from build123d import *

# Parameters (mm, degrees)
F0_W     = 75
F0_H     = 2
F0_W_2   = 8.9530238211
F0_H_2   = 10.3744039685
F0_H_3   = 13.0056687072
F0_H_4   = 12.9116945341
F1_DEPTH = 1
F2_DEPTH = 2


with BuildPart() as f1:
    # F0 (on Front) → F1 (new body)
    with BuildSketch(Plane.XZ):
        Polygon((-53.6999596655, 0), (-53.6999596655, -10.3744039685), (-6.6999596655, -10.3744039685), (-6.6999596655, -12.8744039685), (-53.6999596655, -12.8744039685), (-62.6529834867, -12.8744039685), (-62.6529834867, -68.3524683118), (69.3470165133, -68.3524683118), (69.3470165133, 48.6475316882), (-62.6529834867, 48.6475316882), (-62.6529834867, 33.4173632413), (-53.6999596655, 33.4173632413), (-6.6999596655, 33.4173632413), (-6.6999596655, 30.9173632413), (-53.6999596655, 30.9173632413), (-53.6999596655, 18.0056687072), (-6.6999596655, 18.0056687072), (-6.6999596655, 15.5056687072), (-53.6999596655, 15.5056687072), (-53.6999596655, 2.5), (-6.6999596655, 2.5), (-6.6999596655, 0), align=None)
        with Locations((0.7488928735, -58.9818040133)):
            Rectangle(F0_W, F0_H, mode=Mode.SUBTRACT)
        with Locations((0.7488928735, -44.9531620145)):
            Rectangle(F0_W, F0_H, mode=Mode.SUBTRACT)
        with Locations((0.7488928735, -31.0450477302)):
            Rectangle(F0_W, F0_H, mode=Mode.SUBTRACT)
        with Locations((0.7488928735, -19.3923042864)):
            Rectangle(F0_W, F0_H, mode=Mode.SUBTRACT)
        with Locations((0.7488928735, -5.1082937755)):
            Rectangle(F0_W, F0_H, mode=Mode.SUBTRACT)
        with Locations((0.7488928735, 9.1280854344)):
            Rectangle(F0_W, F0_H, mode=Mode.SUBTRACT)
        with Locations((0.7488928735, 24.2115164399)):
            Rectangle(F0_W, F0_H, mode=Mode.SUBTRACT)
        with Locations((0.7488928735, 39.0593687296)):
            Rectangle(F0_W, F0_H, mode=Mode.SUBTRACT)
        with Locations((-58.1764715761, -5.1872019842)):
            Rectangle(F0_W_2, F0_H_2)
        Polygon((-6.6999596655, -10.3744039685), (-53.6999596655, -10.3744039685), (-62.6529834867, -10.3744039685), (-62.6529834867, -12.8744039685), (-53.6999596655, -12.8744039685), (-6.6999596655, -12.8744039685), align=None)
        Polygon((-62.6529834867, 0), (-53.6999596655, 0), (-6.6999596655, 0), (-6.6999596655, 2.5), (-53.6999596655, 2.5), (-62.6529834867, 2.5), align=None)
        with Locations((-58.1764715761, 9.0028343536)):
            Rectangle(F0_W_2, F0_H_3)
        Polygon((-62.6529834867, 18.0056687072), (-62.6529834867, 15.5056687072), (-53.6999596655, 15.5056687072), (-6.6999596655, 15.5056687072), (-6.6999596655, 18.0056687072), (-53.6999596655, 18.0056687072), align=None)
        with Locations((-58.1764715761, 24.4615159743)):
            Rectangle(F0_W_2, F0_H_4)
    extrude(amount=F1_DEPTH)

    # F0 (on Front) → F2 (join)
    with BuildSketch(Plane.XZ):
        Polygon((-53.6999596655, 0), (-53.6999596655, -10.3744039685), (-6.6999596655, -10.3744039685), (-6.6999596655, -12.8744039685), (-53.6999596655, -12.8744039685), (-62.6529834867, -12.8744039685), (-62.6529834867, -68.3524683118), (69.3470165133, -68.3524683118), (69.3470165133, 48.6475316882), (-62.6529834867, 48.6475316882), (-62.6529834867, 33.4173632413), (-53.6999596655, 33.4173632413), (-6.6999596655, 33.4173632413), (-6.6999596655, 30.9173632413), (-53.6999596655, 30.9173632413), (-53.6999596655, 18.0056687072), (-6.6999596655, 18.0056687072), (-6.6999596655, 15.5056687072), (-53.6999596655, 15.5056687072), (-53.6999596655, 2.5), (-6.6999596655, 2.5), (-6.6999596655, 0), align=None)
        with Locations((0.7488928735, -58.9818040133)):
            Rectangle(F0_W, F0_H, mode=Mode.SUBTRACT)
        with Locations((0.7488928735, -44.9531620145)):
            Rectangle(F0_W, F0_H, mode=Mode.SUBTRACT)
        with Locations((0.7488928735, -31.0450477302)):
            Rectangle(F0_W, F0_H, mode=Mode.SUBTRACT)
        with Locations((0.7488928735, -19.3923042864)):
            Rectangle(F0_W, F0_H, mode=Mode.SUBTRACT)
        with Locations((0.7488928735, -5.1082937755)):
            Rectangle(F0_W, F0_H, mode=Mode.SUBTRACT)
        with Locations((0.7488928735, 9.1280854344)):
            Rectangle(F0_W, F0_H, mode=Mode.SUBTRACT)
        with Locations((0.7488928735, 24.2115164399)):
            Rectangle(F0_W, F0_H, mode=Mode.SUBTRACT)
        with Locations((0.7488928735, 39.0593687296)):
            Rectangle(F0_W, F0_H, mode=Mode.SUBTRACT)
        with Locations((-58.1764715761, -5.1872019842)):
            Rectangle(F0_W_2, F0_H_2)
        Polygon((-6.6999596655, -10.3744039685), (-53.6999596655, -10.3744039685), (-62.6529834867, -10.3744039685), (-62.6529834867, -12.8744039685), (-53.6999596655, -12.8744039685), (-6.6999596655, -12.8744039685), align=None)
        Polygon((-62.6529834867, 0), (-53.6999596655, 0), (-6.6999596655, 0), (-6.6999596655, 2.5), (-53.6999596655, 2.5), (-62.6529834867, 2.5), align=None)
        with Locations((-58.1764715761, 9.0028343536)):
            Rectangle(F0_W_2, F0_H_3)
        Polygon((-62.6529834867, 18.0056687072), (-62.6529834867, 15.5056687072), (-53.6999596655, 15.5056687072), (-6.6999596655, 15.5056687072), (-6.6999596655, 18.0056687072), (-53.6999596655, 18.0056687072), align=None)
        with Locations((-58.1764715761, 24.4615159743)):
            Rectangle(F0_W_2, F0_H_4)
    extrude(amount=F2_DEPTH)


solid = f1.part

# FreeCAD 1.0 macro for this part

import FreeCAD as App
import Part
import Sketcher
Q = App.Units.Quantity

doc = App.newDocument("Part")
params = doc.addObject("Spreadsheet::Sheet", "Params")
for row, (alias, value) in enumerate([
    ("sketch1_width", "132 mm"),
    ("sketch1_width2", "75 mm"),
    ("sketch1_height", "117 mm"),
    ("sketch1_height2", "2 mm"),
    ("sketch1_height3", "2.5 mm"),
    ("pad1_length", "1 mm"),
    ("sketch2_width", "132 mm"),
    ("sketch2_width2", "75 mm"),
    ("sketch2_height", "117 mm"),
    ("sketch2_height2", "2 mm"),
    ("sketch2_height3", "2.5 mm"),
    ("pad2_length", "2 mm"),
], start=1):
    params.set(f"A{row}", alias)
    params.set(f"B{row}", "=" + value)
    params.setAlias(f"B{row}", alias)

body = doc.addObject("PartDesign::Body", "Body")

sketch1 = body.newObject("Sketcher::SketchObject", "Sketch")
sketch1.AttachmentSupport = (doc.getObject("XZ_Plane"), [""])
sketch1.MapMode = "FlatFace"
sketch1.addGeometry(Part.LineSegment(App.Vector(-62.7, -68.4, 0), App.Vector(69.3, -68.4, 0)), False)
sketch1.addGeometry(Part.LineSegment(App.Vector(69.3, -68.4, 0), App.Vector(69.3, 48.6, 0)), False)
sketch1.addGeometry(Part.LineSegment(App.Vector(69.3, 48.6, 0), App.Vector(-62.7, 48.6, 0)), False)
sketch1.addGeometry(Part.LineSegment(App.Vector(-62.7, 48.6, 0), App.Vector(-62.7, 33.4, 0)), False)
sketch1.addGeometry(Part.LineSegment(App.Vector(-62.7, 33.4, 0), App.Vector(-6.7, 33.4, 0)), False)
sketch1.addGeometry(Part.LineSegment(App.Vector(-6.7, 33.4, 0), App.Vector(-6.7, 30.9, 0)), False)
sketch1.addGeometry(Part.LineSegment(App.Vector(-6.7, 30.9, 0), App.Vector(-62.7, 30.9, 0)), False)
sketch1.addGeometry(Part.LineSegment(App.Vector(-62.7, 30.9, 0), App.Vector(-62.7, 18, 0)), False)
sketch1.addGeometry(Part.LineSegment(App.Vector(-62.7, 18, 0), App.Vector(-62.7, -68.4, 0)), False)
sketch1.addGeometry(Part.LineSegment(App.Vector(38.2, -60, 0), App.Vector(-36.8, -60, 0)), False)
sketch1.addGeometry(Part.LineSegment(App.Vector(-36.8, -60, 0), App.Vector(-36.8, -58, 0)), False)
sketch1.addGeometry(Part.LineSegment(App.Vector(-36.8, -58, 0), App.Vector(38.2, -58, 0)), False)
sketch1.addGeometry(Part.LineSegment(App.Vector(38.2, -58, 0), App.Vector(38.2, -60, 0)), False)
sketch1.addGeometry(Part.LineSegment(App.Vector(38.2, -46, 0), App.Vector(-36.8, -46, 0)), False)
sketch1.addGeometry(Part.LineSegment(App.Vector(-36.8, -46, 0), App.Vector(-36.8, -44, 0)), False)
sketch1.addGeometry(Part.LineSegment(App.Vector(-36.8, -44, 0), App.Vector(38.2, -44, 0)), False)
sketch1.addGeometry(Part.LineSegment(App.Vector(38.2, -44, 0), App.Vector(38.2, -46, 0)), False)
sketch1.addGeometry(Part.LineSegment(App.Vector(38.2, -32, 0), App.Vector(-36.8, -32, 0)), False)
sketch1.addGeometry(Part.LineSegment(App.Vector(-36.8, -32, 0), App.Vector(-36.8, -30, 0)), False)
sketch1.addGeometry(Part.LineSegment(App.Vector(-36.8, -30, 0), App.Vector(38.2, -30, 0)), False)
sketch1.addGeometry(Part.LineSegment(App.Vector(38.2, -30, 0), App.Vector(38.2, -32, 0)), False)
sketch1.addGeometry(Part.LineSegment(App.Vector(38.2, -20.4, 0), App.Vector(-36.8, -20.4, 0)), False)
sketch1.addGeometry(Part.LineSegment(App.Vector(-36.8, -20.4, 0), App.Vector(-36.8, -18.4, 0)), False)
sketch1.addGeometry(Part.LineSegment(App.Vector(-36.8, -18.4, 0), App.Vector(38.2, -18.4, 0)), False)
sketch1.addGeometry(Part.LineSegment(App.Vector(38.2, -18.4, 0), App.Vector(38.2, -20.4, 0)), False)
sketch1.addGeometry(Part.LineSegment(App.Vector(38.2, -6.1, 0), App.Vector(-36.8, -6.1, 0)), False)
sketch1.addGeometry(Part.LineSegment(App.Vector(-36.8, -6.1, 0), App.Vector(-36.8, -4.1, 0)), False)
sketch1.addGeometry(Part.LineSegment(App.Vector(-36.8, -4.1, 0), App.Vector(38.2, -4.1, 0)), False)
sketch1.addGeometry(Part.LineSegment(App.Vector(38.2, -4.1, 0), App.Vector(38.2, -6.1, 0)), False)
sketch1.addGeometry(Part.LineSegment(App.Vector(38.2, 8.1, 0), App.Vector(-36.8, 8.1, 0)), False)
sketch1.addGeometry(Part.LineSegment(App.Vector(-36.8, 8.1, 0), App.Vector(-36.8, 10.1, 0)), False)
sketch1.addGeometry(Part.LineSegment(App.Vector(-36.8, 10.1, 0), App.Vector(38.2, 10.1, 0)), False)
sketch1.addGeometry(Part.LineSegment(App.Vector(38.2, 10.1, 0), App.Vector(38.2, 8.1, 0)), False)
sketch1.addGeometry(Part.LineSegment(App.Vector(38.2, 23.2, 0), App.Vector(-36.8, 23.2, 0)), False)
sketch1.addGeometry(Part.LineSegment(App.Vector(-36.8, 23.2, 0), App.Vector(-36.8, 25.2, 0)), False)
sketch1.addGeometry(Part.LineSegment(App.Vector(-36.8, 25.2, 0), App.Vector(38.2, 25.2, 0)), False)
sketch1.addGeometry(Part.LineSegment(App.Vector(38.2, 25.2, 0), App.Vector(38.2, 23.2, 0)), False)
sketch1.addGeometry(Part.LineSegment(App.Vector(38.2, 38.1, 0), App.Vector(-36.8, 38.1, 0)), False)
sketch1.addGeometry(Part.LineSegment(App.Vector(-36.8, 38.1, 0), App.Vector(-36.8, 40.1, 0)), False)
sketch1.addGeometry(Part.LineSegment(App.Vector(-36.8, 40.1, 0), App.Vector(38.2, 40.1, 0)), False)
sketch1.addGeometry(Part.LineSegment(App.Vector(38.2, 40.1, 0), App.Vector(38.2, 38.1, 0)), False)
sketch1.addConstraint(Sketcher.Constraint("Coincident", 0, 2, 1, 1))
sketch1.addConstraint(Sketcher.Constraint("Coincident", 1, 2, 2, 1))
sketch1.addConstraint(Sketcher.Constraint("Coincident", 2, 2, 3, 1))
sketch1.addConstraint(Sketcher.Constraint("Coincident", 3, 2, 4, 1))
sketch1.addConstraint(Sketcher.Constraint("Coincident", 4, 2, 5, 1))
sketch1.addConstraint(Sketcher.Constraint("Coincident", 5, 2, 6, 1))
sketch1.addConstraint(Sketcher.Constraint("Coincident", 6, 2, 7, 1))
sketch1.addConstraint(Sketcher.Constraint("Coincident", 7, 2, 8, 1))
sketch1.addConstraint(Sketcher.Constraint("Coincident", 8, 2, 0, 1))
sketch1.addConstraint(Sketcher.Constraint("Coincident", 9, 2, 10, 1))
sketch1.addConstraint(Sketcher.Constraint("Coincident", 10, 2, 11, 1))
sketch1.addConstraint(Sketcher.Constraint("Coincident", 11, 2, 12, 1))
sketch1.addConstraint(Sketcher.Constraint("Coincident", 12, 2, 9, 1))
sketch1.addConstraint(Sketcher.Constraint("Coincident", 13, 2, 14, 1))
sketch1.addConstraint(Sketcher.Constraint("Coincident", 14, 2, 15, 1))
sketch1.addConstraint(Sketcher.Constraint("Coincident", 15, 2, 16, 1))
sketch1.addConstraint(Sketcher.Constraint("Coincident", 16, 2, 13, 1))
sketch1.addConstraint(Sketcher.Constraint("Coincident", 17, 2, 18, 1))
sketch1.addConstraint(Sketcher.Constraint("Coincident", 18, 2, 19, 1))
sketch1.addConstraint(Sketcher.Constraint("Coincident", 19, 2, 20, 1))
sketch1.addConstraint(Sketcher.Constraint("Coincident", 20, 2, 17, 1))
sketch1.addConstraint(Sketcher.Constraint("Coincident", 21, 2, 22, 1))
sketch1.addConstraint(Sketcher.Constraint("Coincident", 22, 2, 23, 1))
sketch1.addConstraint(Sketcher.Constraint("Coincident", 23, 2, 24, 1))
sketch1.addConstraint(Sketcher.Constraint("Coincident", 24, 2, 21, 1))
sketch1.addConstraint(Sketcher.Constraint("Coincident", 25, 2, 26, 1))
sketch1.addConstraint(Sketcher.Constraint("Coincident", 26, 2, 27, 1))
sketch1.addConstraint(Sketcher.Constraint("Coincident", 27, 2, 28, 1))
sketch1.addConstraint(Sketcher.Constraint("Coincident", 28, 2, 25, 1))
sketch1.addConstraint(Sketcher.Constraint("Coincident", 29, 2, 30, 1))
sketch1.addConstraint(Sketcher.Constraint("Coincident", 30, 2, 31, 1))
sketch1.addConstraint(Sketcher.Constraint("Coincident", 31, 2, 32, 1))
sketch1.addConstraint(Sketcher.Constraint("Coincident", 32, 2, 29, 1))
sketch1.addConstraint(Sketcher.Constraint("Coincident", 33, 2, 34, 1))
sketch1.addConstraint(Sketcher.Constraint("Coincident", 34, 2, 35, 1))
sketch1.addConstraint(Sketcher.Constraint("Coincident", 35, 2, 36, 1))
sketch1.addConstraint(Sketcher.Constraint("Coincident", 36, 2, 33, 1))
sketch1.addConstraint(Sketcher.Constraint("Coincident", 37, 2, 38, 1))
sketch1.addConstraint(Sketcher.Constraint("Coincident", 38, 2, 39, 1))
sketch1.addConstraint(Sketcher.Constraint("Coincident", 39, 2, 40, 1))
sketch1.addConstraint(Sketcher.Constraint("Coincident", 40, 2, 37, 1))
sketch1.addConstraint(Sketcher.Constraint("Horizontal", 0))
sketch1.addConstraint(Sketcher.Constraint("Vertical", 1))
sketch1.addConstraint(Sketcher.Constraint("Horizontal", 2))
sketch1.addConstraint(Sketcher.Constraint("Vertical", 3))
sketch1.addConstraint(Sketcher.Constraint("Horizontal", 4))
sketch1.addConstraint(Sketcher.Constraint("Vertical", 5))
sketch1.addConstraint(Sketcher.Constraint("Horizontal", 6))
sketch1.addConstraint(Sketcher.Constraint("Vertical", 7))
sketch1.addConstraint(Sketcher.Constraint("Vertical", 8))
sketch1.addConstraint(Sketcher.Constraint("Horizontal", 9))
sketch1.addConstraint(Sketcher.Constraint("Vertical", 10))
sketch1.addConstraint(Sketcher.Constraint("Horizontal", 11))
sketch1.addConstraint(Sketcher.Constraint("Vertical", 12))
sketch1.addConstraint(Sketcher.Constraint("Horizontal", 13))
sketch1.addConstraint(Sketcher.Constraint("Vertical", 14))
sketch1.addConstraint(Sketcher.Constraint("Horizontal", 15))
sketch1.addConstraint(Sketcher.Constraint("Vertical", 16))
sketch1.addConstraint(Sketcher.Constraint("Horizontal", 17))
sketch1.addConstraint(Sketcher.Constraint("Vertical", 18))
sketch1.addConstraint(Sketcher.Constraint("Horizontal", 19))
sketch1.addConstraint(Sketcher.Constraint("Vertical", 20))
sketch1.addConstraint(Sketcher.Constraint("Horizontal", 21))
sketch1.addConstraint(Sketcher.Constraint("Vertical", 22))
sketch1.addConstraint(Sketcher.Constraint("Horizontal", 23))
sketch1.addConstraint(Sketcher.Constraint("Vertical", 24))
sketch1.addConstraint(Sketcher.Constraint("Horizontal", 25))
sketch1.addConstraint(Sketcher.Constraint("Vertical", 26))
sketch1.addConstraint(Sketcher.Constraint("Horizontal", 27))
sketch1.addConstraint(Sketcher.Constraint("Vertical", 28))
sketch1.addConstraint(Sketcher.Constraint("Horizontal", 29))
sketch1.addConstraint(Sketcher.Constraint("Vertical", 30))
sketch1.addConstraint(Sketcher.Constraint("Horizontal", 31))
sketch1.addConstraint(Sketcher.Constraint("Vertical", 32))
sketch1.addConstraint(Sketcher.Constraint("Horizontal", 33))
sketch1.addConstraint(Sketcher.Constraint("Vertical", 34))
sketch1.addConstraint(Sketcher.Constraint("Horizontal", 35))
sketch1.addConstraint(Sketcher.Constraint("Vertical", 36))
sketch1.addConstraint(Sketcher.Constraint("Horizontal", 37))
sketch1.addConstraint(Sketcher.Constraint("Vertical", 38))
sketch1.addConstraint(Sketcher.Constraint("Horizontal", 39))
sketch1.addConstraint(Sketcher.Constraint("Vertical", 40))
sketch1.addConstraint(Sketcher.Constraint("Vertical", 3, 2, 6, 2))
sketch1.addConstraint(Sketcher.Constraint("Vertical", 10, 2, 13, 2))
sketch1.addConstraint(Sketcher.Constraint("Vertical", 12, 2, 15, 2))
sketch1.addConstraint(Sketcher.Constraint("Vertical", 14, 2, 17, 2))
sketch1.addConstraint(Sketcher.Constraint("Vertical", 16, 2, 19, 2))
sketch1.addConstraint(Sketcher.Constraint("Vertical", 18, 2, 21, 2))
sketch1.addConstraint(Sketcher.Constraint("Vertical", 20, 2, 23, 2))
sketch1.addConstraint(Sketcher.Constraint("Vertical", 22, 2, 25, 2))
sketch1.addConstraint(Sketcher.Constraint("Vertical", 24, 2, 27, 2))
sketch1.addConstraint(Sketcher.Constraint("Vertical", 26, 2, 29, 2))
sketch1.addConstraint(Sketcher.Constraint("Vertical", 28, 2, 31, 2))
sketch1.addConstraint(Sketcher.Constraint("Vertical", 30, 2, 33, 2))
sketch1.addConstraint(Sketcher.Constraint("Vertical", 32, 2, 35, 2))
sketch1.addConstraint(Sketcher.Constraint("Vertical", 34, 2, 37, 2))
sketch1.addConstraint(Sketcher.Constraint("Vertical", 36, 2, 39, 2))
sketch1.addConstraint(Sketcher.Constraint("Equal", 12, 14))
sketch1.addConstraint(Sketcher.Constraint("Equal", 16, 18))
sketch1.addConstraint(Sketcher.Constraint("Equal", 20, 22))
sketch1.addConstraint(Sketcher.Constraint("Equal", 24, 26))
sketch1.addConstraint(Sketcher.Constraint("Equal", 28, 30))
sketch1.addConstraint(Sketcher.Constraint("Equal", 32, 34))
sketch1.addConstraint(Sketcher.Constraint("Equal", 36, 38))
sketch1.addConstraint(Sketcher.Constraint("DistanceX", 0, 1, 0, 2, Q("132 mm")))
sketch1.addConstraint(Sketcher.Constraint("DistanceX", 9, 2, 9, 1, Q("75 mm")))
sketch1.addConstraint(Sketcher.Constraint("DistanceY", 1, 1, 1, 2, Q("117 mm")))
sketch1.addConstraint(Sketcher.Constraint("DistanceY", 10, 1, 10, 2, Q("2 mm")))
sketch1.addConstraint(Sketcher.Constraint("DistanceY", 5, 2, 5, 1, Q("2.5 mm")))
sketch1.addConstraint(Sketcher.Constraint("DistanceY", 3, 2, 3, 1, Q("15.230168 mm")))
sketch1.addConstraint(Sketcher.Constraint("DistanceY", 10, 2, 21, 2, Q("37.5895 mm")))
sketch1.addConstraint(Sketcher.Constraint("DistanceX", 4, 1, 4, 2, Q("55.953024 mm")))
sketch1.addConstraint(Sketcher.Constraint("DistanceY", 7, 2, 7, 1, Q("12.911695 mm")))
sketch1.addConstraint(Sketcher.Constraint("DistanceY", 0, 2, -1, 1, Q("68.352468 mm")))
sketch1.addConstraint(Sketcher.Constraint("DistanceX", 4, 2, -1, 1, Q("6.69996 mm")))
sketch1.addConstraint(Sketcher.Constraint("DistanceY", -1, 1, 37, 2, Q("38.059369 mm")))
sketch1.addConstraint(Sketcher.Constraint("DistanceY", 10, 2, 13, 2, Q("12.028642 mm")))
sketch1.addConstraint(Sketcher.Constraint("DistanceY", 13, 2, 7, 2, Q("63.958831 mm")))
sketch1.addConstraint(Sketcher.Constraint("DistanceY", 8, 2, 17, 2, Q("36.307421 mm")))
sketch1.addConstraint(Sketcher.Constraint("DistanceY", 22, 2, 25, 2, Q("12.284011 mm")))
sketch1.addConstraint(Sketcher.Constraint("DistanceY", 26, 2, 29, 2, Q("12.236379 mm")))
sketch1.addConstraint(Sketcher.Constraint("DistanceY", 30, 2, 33, 2, Q("13.083431 mm")))
sketch1.addConstraint(Sketcher.Constraint("DistanceX", 9, 2, -1, 1, Q("36.751107 mm")))
sketch1.setExpression("Constraints[104]", "Params.sketch1_width")
sketch1.setExpression("Constraints[105]", "Params.sketch1_width2")
sketch1.setExpression("Constraints[106]", "Params.sketch1_height")
sketch1.setExpression("Constraints[107]", "Params.sketch1_height2")
sketch1.setExpression("Constraints[108]", "Params.sketch1_height3")
pad1 = body.newObject("PartDesign::Pad", "Pad")
pad1.Profile = sketch1
pad1.setExpression("Length", "Params.pad1_length")

sketch2 = body.newObject("Sketcher::SketchObject", "Sketch001")
sketch2.AttachmentSupport = (doc.getObject("XZ_Plane"), [""])
sketch2.MapMode = "FlatFace"
sketch2.addGeometry(Part.LineSegment(App.Vector(-62.7, -68.4, 0), App.Vector(69.3, -68.4, 0)), False)
sketch2.addGeometry(Part.LineSegment(App.Vector(69.3, -68.4, 0), App.Vector(69.3, 48.6, 0)), False)
sketch2.addGeometry(Part.LineSegment(App.Vector(69.3, 48.6, 0), App.Vector(-62.7, 48.6, 0)), False)
sketch2.addGeometry(Part.LineSegment(App.Vector(-62.7, 48.6, 0), App.Vector(-62.7, 33.4, 0)), False)
sketch2.addGeometry(Part.LineSegment(App.Vector(-62.7, 33.4, 0), App.Vector(-6.7, 33.4, 0)), False)
sketch2.addGeometry(Part.LineSegment(App.Vector(-6.7, 33.4, 0), App.Vector(-6.7, 30.9, 0)), False)
sketch2.addGeometry(Part.LineSegment(App.Vector(-6.7, 30.9, 0), App.Vector(-62.7, 30.9, 0)), False)
sketch2.addGeometry(Part.LineSegment(App.Vector(-62.7, 30.9, 0), App.Vector(-62.7, 18, 0)), False)
sketch2.addGeometry(Part.LineSegment(App.Vector(-62.7, 18, 0), App.Vector(-62.7, -68.4, 0)), False)
sketch2.addGeometry(Part.LineSegment(App.Vector(38.2, -60, 0), App.Vector(-36.8, -60, 0)), False)
sketch2.addGeometry(Part.LineSegment(App.Vector(-36.8, -60, 0), App.Vector(-36.8, -58, 0)), False)
sketch2.addGeometry(Part.LineSegment(App.Vector(-36.8, -58, 0), App.Vector(38.2, -58, 0)), False)
sketch2.addGeometry(Part.LineSegment(App.Vector(38.2, -58, 0), App.Vector(38.2, -60, 0)), False)
sketch2.addGeometry(Part.LineSegment(App.Vector(38.2, -46, 0), App.Vector(-36.8, -46, 0)), False)
sketch2.addGeometry(Part.LineSegment(App.Vector(-36.8, -46, 0), App.Vector(-36.8, -44, 0)), False)
sketch2.addGeometry(Part.LineSegment(App.Vector(-36.8, -44, 0), App.Vector(38.2, -44, 0)), False)
sketch2.addGeometry(Part.LineSegment(App.Vector(38.2, -44, 0), App.Vector(38.2, -46, 0)), False)
sketch2.addGeometry(Part.LineSegment(App.Vector(38.2, -32, 0), App.Vector(-36.8, -32, 0)), False)
sketch2.addGeometry(Part.LineSegment(App.Vector(-36.8, -32, 0), App.Vector(-36.8, -30, 0)), False)
sketch2.addGeometry(Part.LineSegment(App.Vector(-36.8, -30, 0), App.Vector(38.2, -30, 0)), False)
sketch2.addGeometry(Part.LineSegment(App.Vector(38.2, -30, 0), App.Vector(38.2, -32, 0)), False)
sketch2.addGeometry(Part.LineSegment(App.Vector(38.2, -20.4, 0), App.Vector(-36.8, -20.4, 0)), False)
sketch2.addGeometry(Part.LineSegment(App.Vector(-36.8, -20.4, 0), App.Vector(-36.8, -18.4, 0)), False)
sketch2.addGeometry(Part.LineSegment(App.Vector(-36.8, -18.4, 0), App.Vector(38.2, -18.4, 0)), False)
sketch2.addGeometry(Part.LineSegment(App.Vector(38.2, -18.4, 0), App.Vector(38.2, -20.4, 0)), False)
sketch2.addGeometry(Part.LineSegment(App.Vector(38.2, -6.1, 0), App.Vector(-36.8, -6.1, 0)), False)
sketch2.addGeometry(Part.LineSegment(App.Vector(-36.8, -6.1, 0), App.Vector(-36.8, -4.1, 0)), False)
sketch2.addGeometry(Part.LineSegment(App.Vector(-36.8, -4.1, 0), App.Vector(38.2, -4.1, 0)), False)
sketch2.addGeometry(Part.LineSegment(App.Vector(38.2, -4.1, 0), App.Vector(38.2, -6.1, 0)), False)
sketch2.addGeometry(Part.LineSegment(App.Vector(38.2, 8.1, 0), App.Vector(-36.8, 8.1, 0)), False)
sketch2.addGeometry(Part.LineSegment(App.Vector(-36.8, 8.1, 0), App.Vector(-36.8, 10.1, 0)), False)
sketch2.addGeometry(Part.LineSegment(App.Vector(-36.8, 10.1, 0), App.Vector(38.2, 10.1, 0)), False)
sketch2.addGeometry(Part.LineSegment(App.Vector(38.2, 10.1, 0), App.Vector(38.2, 8.1, 0)), False)
sketch2.addGeometry(Part.LineSegment(App.Vector(38.2, 23.2, 0), App.Vector(-36.8, 23.2, 0)), False)
sketch2.addGeometry(Part.LineSegment(App.Vector(-36.8, 23.2, 0), App.Vector(-36.8, 25.2, 0)), False)
sketch2.addGeometry(Part.LineSegment(App.Vector(-36.8, 25.2, 0), App.Vector(38.2, 25.2, 0)), False)
sketch2.addGeometry(Part.LineSegment(App.Vector(38.2, 25.2, 0), App.Vector(38.2, 23.2, 0)), False)
sketch2.addGeometry(Part.LineSegment(App.Vector(38.2, 38.1, 0), App.Vector(-36.8, 38.1, 0)), False)
sketch2.addGeometry(Part.LineSegment(App.Vector(-36.8, 38.1, 0), App.Vector(-36.8, 40.1, 0)), False)
sketch2.addGeometry(Part.LineSegment(App.Vector(-36.8, 40.1, 0), App.Vector(38.2, 40.1, 0)), False)
sketch2.addGeometry(Part.LineSegment(App.Vector(38.2, 40.1, 0), App.Vector(38.2, 38.1, 0)), False)
sketch2.addConstraint(Sketcher.Constraint("Coincident", 0, 2, 1, 1))
sketch2.addConstraint(Sketcher.Constraint("Coincident", 1, 2, 2, 1))
sketch2.addConstraint(Sketcher.Constraint("Coincident", 2, 2, 3, 1))
sketch2.addConstraint(Sketcher.Constraint("Coincident", 3, 2, 4, 1))
sketch2.addConstraint(Sketcher.Constraint("Coincident", 4, 2, 5, 1))
sketch2.addConstraint(Sketcher.Constraint("Coincident", 5, 2, 6, 1))
sketch2.addConstraint(Sketcher.Constraint("Coincident", 6, 2, 7, 1))
sketch2.addConstraint(Sketcher.Constraint("Coincident", 7, 2, 8, 1))
sketch2.addConstraint(Sketcher.Constraint("Coincident", 8, 2, 0, 1))
sketch2.addConstraint(Sketcher.Constraint("Coincident", 9, 2, 10, 1))
sketch2.addConstraint(Sketcher.Constraint("Coincident", 10, 2, 11, 1))
sketch2.addConstraint(Sketcher.Constraint("Coincident", 11, 2, 12, 1))
sketch2.addConstraint(Sketcher.Constraint("Coincident", 12, 2, 9, 1))
sketch2.addConstraint(Sketcher.Constraint("Coincident", 13, 2, 14, 1))
sketch2.addConstraint(Sketcher.Constraint("Coincident", 14, 2, 15, 1))
sketch2.addConstraint(Sketcher.Constraint("Coincident", 15, 2, 16, 1))
sketch2.addConstraint(Sketcher.Constraint("Coincident", 16, 2, 13, 1))
sketch2.addConstraint(Sketcher.Constraint("Coincident", 17, 2, 18, 1))
sketch2.addConstraint(Sketcher.Constraint("Coincident", 18, 2, 19, 1))
sketch2.addConstraint(Sketcher.Constraint("Coincident", 19, 2, 20, 1))
sketch2.addConstraint(Sketcher.Constraint("Coincident", 20, 2, 17, 1))
sketch2.addConstraint(Sketcher.Constraint("Coincident", 21, 2, 22, 1))
sketch2.addConstraint(Sketcher.Constraint("Coincident", 22, 2, 23, 1))
sketch2.addConstraint(Sketcher.Constraint("Coincident", 23, 2, 24, 1))
sketch2.addConstraint(Sketcher.Constraint("Coincident", 24, 2, 21, 1))
sketch2.addConstraint(Sketcher.Constraint("Coincident", 25, 2, 26, 1))
sketch2.addConstraint(Sketcher.Constraint("Coincident", 26, 2, 27, 1))
sketch2.addConstraint(Sketcher.Constraint("Coincident", 27, 2, 28, 1))
sketch2.addConstraint(Sketcher.Constraint("Coincident", 28, 2, 25, 1))
sketch2.addConstraint(Sketcher.Constraint("Coincident", 29, 2, 30, 1))
sketch2.addConstraint(Sketcher.Constraint("Coincident", 30, 2, 31, 1))
sketch2.addConstraint(Sketcher.Constraint("Coincident", 31, 2, 32, 1))
sketch2.addConstraint(Sketcher.Constraint("Coincident", 32, 2, 29, 1))
sketch2.addConstraint(Sketcher.Constraint("Coincident", 33, 2, 34, 1))
sketch2.addConstraint(Sketcher.Constraint("Coincident", 34, 2, 35, 1))
sketch2.addConstraint(Sketcher.Constraint("Coincident", 35, 2, 36, 1))
sketch2.addConstraint(Sketcher.Constraint("Coincident", 36, 2, 33, 1))
sketch2.addConstraint(Sketcher.Constraint("Coincident", 37, 2, 38, 1))
sketch2.addConstraint(Sketcher.Constraint("Coincident", 38, 2, 39, 1))
sketch2.addConstraint(Sketcher.Constraint("Coincident", 39, 2, 40, 1))
sketch2.addConstraint(Sketcher.Constraint("Coincident", 40, 2, 37, 1))
sketch2.addConstraint(Sketcher.Constraint("Horizontal", 0))
sketch2.addConstraint(Sketcher.Constraint("Vertical", 1))
sketch2.addConstraint(Sketcher.Constraint("Horizontal", 2))
sketch2.addConstraint(Sketcher.Constraint("Vertical", 3))
sketch2.addConstraint(Sketcher.Constraint("Horizontal", 4))
sketch2.addConstraint(Sketcher.Constraint("Vertical", 5))
sketch2.addConstraint(Sketcher.Constraint("Horizontal", 6))
sketch2.addConstraint(Sketcher.Constraint("Vertical", 7))
sketch2.addConstraint(Sketcher.Constraint("Vertical", 8))
sketch2.addConstraint(Sketcher.Constraint("Horizontal", 9))
sketch2.addConstraint(Sketcher.Constraint("Vertical", 10))
sketch2.addConstraint(Sketcher.Constraint("Horizontal", 11))
sketch2.addConstraint(Sketcher.Constraint("Vertical", 12))
sketch2.addConstraint(Sketcher.Constraint("Horizontal", 13))
sketch2.addConstraint(Sketcher.Constraint("Vertical", 14))
sketch2.addConstraint(Sketcher.Constraint("Horizontal", 15))
sketch2.addConstraint(Sketcher.Constraint("Vertical", 16))
sketch2.addConstraint(Sketcher.Constraint("Horizontal", 17))
sketch2.addConstraint(Sketcher.Constraint("Vertical", 18))
sketch2.addConstraint(Sketcher.Constraint("Horizontal", 19))
sketch2.addConstraint(Sketcher.Constraint("Vertical", 20))
sketch2.addConstraint(Sketcher.Constraint("Horizontal", 21))
sketch2.addConstraint(Sketcher.Constraint("Vertical", 22))
sketch2.addConstraint(Sketcher.Constraint("Horizontal", 23))
sketch2.addConstraint(Sketcher.Constraint("Vertical", 24))
sketch2.addConstraint(Sketcher.Constraint("Horizontal", 25))
sketch2.addConstraint(Sketcher.Constraint("Vertical", 26))
sketch2.addConstraint(Sketcher.Constraint("Horizontal", 27))
sketch2.addConstraint(Sketcher.Constraint("Vertical", 28))
sketch2.addConstraint(Sketcher.Constraint("Horizontal", 29))
sketch2.addConstraint(Sketcher.Constraint("Vertical", 30))
sketch2.addConstraint(Sketcher.Constraint("Horizontal", 31))
sketch2.addConstraint(Sketcher.Constraint("Vertical", 32))
sketch2.addConstraint(Sketcher.Constraint("Horizontal", 33))
sketch2.addConstraint(Sketcher.Constraint("Vertical", 34))
sketch2.addConstraint(Sketcher.Constraint("Horizontal", 35))
sketch2.addConstraint(Sketcher.Constraint("Vertical", 36))
sketch2.addConstraint(Sketcher.Constraint("Horizontal", 37))
sketch2.addConstraint(Sketcher.Constraint("Vertical", 38))
sketch2.addConstraint(Sketcher.Constraint("Horizontal", 39))
sketch2.addConstraint(Sketcher.Constraint("Vertical", 40))
sketch2.addConstraint(Sketcher.Constraint("Vertical", 3, 2, 6, 2))
sketch2.addConstraint(Sketcher.Constraint("Vertical", 10, 2, 13, 2))
sketch2.addConstraint(Sketcher.Constraint("Vertical", 12, 2, 15, 2))
sketch2.addConstraint(Sketcher.Constraint("Vertical", 14, 2, 17, 2))
sketch2.addConstraint(Sketcher.Constraint("Vertical", 16, 2, 19, 2))
sketch2.addConstraint(Sketcher.Constraint("Vertical", 18, 2, 21, 2))
sketch2.addConstraint(Sketcher.Constraint("Vertical", 20, 2, 23, 2))
sketch2.addConstraint(Sketcher.Constraint("Vertical", 22, 2, 25, 2))
sketch2.addConstraint(Sketcher.Constraint("Vertical", 24, 2, 27, 2))
sketch2.addConstraint(Sketcher.Constraint("Vertical", 26, 2, 29, 2))
sketch2.addConstraint(Sketcher.Constraint("Vertical", 28, 2, 31, 2))
sketch2.addConstraint(Sketcher.Constraint("Vertical", 30, 2, 33, 2))
sketch2.addConstraint(Sketcher.Constraint("Vertical", 32, 2, 35, 2))
sketch2.addConstraint(Sketcher.Constraint("Vertical", 34, 2, 37, 2))
sketch2.addConstraint(Sketcher.Constraint("Vertical", 36, 2, 39, 2))
sketch2.addConstraint(Sketcher.Constraint("Equal", 12, 14))
sketch2.addConstraint(Sketcher.Constraint("Equal", 16, 18))
sketch2.addConstraint(Sketcher.Constraint("Equal", 20, 22))
sketch2.addConstraint(Sketcher.Constraint("Equal", 24, 26))
sketch2.addConstraint(Sketcher.Constraint("Equal", 28, 30))
sketch2.addConstraint(Sketcher.Constraint("Equal", 32, 34))
sketch2.addConstraint(Sketcher.Constraint("Equal", 36, 38))
sketch2.addConstraint(Sketcher.Constraint("DistanceX", 0, 1, 0, 2, Q("132 mm")))
sketch2.addConstraint(Sketcher.Constraint("DistanceX", 9, 2, 9, 1, Q("75 mm")))
sketch2.addConstraint(Sketcher.Constraint("DistanceY", 1, 1, 1, 2, Q("117 mm")))
sketch2.addConstraint(Sketcher.Constraint("DistanceY", 10, 1, 10, 2, Q("2 mm")))
sketch2.addConstraint(Sketcher.Constraint("DistanceY", 5, 2, 5, 1, Q("2.5 mm")))
sketch2.addConstraint(Sketcher.Constraint("DistanceY", 3, 2, 3, 1, Q("15.230168 mm")))
sketch2.addConstraint(Sketcher.Constraint("DistanceY", 10, 2, 21, 2, Q("37.5895 mm")))
sketch2.addConstraint(Sketcher.Constraint("DistanceX", 4, 1, 4, 2, Q("55.953024 mm")))
sketch2.addConstraint(Sketcher.Constraint("DistanceY", 7, 2, 7, 1, Q("12.911695 mm")))
sketch2.addConstraint(Sketcher.Constraint("DistanceY", 0, 2, -1, 1, Q("68.352468 mm")))
sketch2.addConstraint(Sketcher.Constraint("DistanceX", 4, 2, -1, 1, Q("6.69996 mm")))
sketch2.addConstraint(Sketcher.Constraint("DistanceY", -1, 1, 37, 2, Q("38.059369 mm")))
sketch2.addConstraint(Sketcher.Constraint("DistanceY", 10, 2, 13, 2, Q("12.028642 mm")))
sketch2.addConstraint(Sketcher.Constraint("DistanceY", 13, 2, 7, 2, Q("63.958831 mm")))
sketch2.addConstraint(Sketcher.Constraint("DistanceY", 8, 2, 17, 2, Q("36.307421 mm")))
sketch2.addConstraint(Sketcher.Constraint("DistanceY", 22, 2, 25, 2, Q("12.284011 mm")))
sketch2.addConstraint(Sketcher.Constraint("DistanceY", 26, 2, 29, 2, Q("12.236379 mm")))
sketch2.addConstraint(Sketcher.Constraint("DistanceY", 30, 2, 33, 2, Q("13.083431 mm")))
sketch2.addConstraint(Sketcher.Constraint("DistanceX", 9, 2, -1, 1, Q("36.751107 mm")))
sketch2.setExpression("Constraints[104]", "Params.sketch2_width")
sketch2.setExpression("Constraints[105]", "Params.sketch2_width2")
sketch2.setExpression("Constraints[106]", "Params.sketch2_height")
sketch2.setExpression("Constraints[107]", "Params.sketch2_height2")
sketch2.setExpression("Constraints[108]", "Params.sketch2_height3")
pad2 = body.newObject("PartDesign::Pad", "Pad001")
pad2.Profile = sketch2
pad2.setExpression("Length", "Params.pad2_length")

doc.recompute()
